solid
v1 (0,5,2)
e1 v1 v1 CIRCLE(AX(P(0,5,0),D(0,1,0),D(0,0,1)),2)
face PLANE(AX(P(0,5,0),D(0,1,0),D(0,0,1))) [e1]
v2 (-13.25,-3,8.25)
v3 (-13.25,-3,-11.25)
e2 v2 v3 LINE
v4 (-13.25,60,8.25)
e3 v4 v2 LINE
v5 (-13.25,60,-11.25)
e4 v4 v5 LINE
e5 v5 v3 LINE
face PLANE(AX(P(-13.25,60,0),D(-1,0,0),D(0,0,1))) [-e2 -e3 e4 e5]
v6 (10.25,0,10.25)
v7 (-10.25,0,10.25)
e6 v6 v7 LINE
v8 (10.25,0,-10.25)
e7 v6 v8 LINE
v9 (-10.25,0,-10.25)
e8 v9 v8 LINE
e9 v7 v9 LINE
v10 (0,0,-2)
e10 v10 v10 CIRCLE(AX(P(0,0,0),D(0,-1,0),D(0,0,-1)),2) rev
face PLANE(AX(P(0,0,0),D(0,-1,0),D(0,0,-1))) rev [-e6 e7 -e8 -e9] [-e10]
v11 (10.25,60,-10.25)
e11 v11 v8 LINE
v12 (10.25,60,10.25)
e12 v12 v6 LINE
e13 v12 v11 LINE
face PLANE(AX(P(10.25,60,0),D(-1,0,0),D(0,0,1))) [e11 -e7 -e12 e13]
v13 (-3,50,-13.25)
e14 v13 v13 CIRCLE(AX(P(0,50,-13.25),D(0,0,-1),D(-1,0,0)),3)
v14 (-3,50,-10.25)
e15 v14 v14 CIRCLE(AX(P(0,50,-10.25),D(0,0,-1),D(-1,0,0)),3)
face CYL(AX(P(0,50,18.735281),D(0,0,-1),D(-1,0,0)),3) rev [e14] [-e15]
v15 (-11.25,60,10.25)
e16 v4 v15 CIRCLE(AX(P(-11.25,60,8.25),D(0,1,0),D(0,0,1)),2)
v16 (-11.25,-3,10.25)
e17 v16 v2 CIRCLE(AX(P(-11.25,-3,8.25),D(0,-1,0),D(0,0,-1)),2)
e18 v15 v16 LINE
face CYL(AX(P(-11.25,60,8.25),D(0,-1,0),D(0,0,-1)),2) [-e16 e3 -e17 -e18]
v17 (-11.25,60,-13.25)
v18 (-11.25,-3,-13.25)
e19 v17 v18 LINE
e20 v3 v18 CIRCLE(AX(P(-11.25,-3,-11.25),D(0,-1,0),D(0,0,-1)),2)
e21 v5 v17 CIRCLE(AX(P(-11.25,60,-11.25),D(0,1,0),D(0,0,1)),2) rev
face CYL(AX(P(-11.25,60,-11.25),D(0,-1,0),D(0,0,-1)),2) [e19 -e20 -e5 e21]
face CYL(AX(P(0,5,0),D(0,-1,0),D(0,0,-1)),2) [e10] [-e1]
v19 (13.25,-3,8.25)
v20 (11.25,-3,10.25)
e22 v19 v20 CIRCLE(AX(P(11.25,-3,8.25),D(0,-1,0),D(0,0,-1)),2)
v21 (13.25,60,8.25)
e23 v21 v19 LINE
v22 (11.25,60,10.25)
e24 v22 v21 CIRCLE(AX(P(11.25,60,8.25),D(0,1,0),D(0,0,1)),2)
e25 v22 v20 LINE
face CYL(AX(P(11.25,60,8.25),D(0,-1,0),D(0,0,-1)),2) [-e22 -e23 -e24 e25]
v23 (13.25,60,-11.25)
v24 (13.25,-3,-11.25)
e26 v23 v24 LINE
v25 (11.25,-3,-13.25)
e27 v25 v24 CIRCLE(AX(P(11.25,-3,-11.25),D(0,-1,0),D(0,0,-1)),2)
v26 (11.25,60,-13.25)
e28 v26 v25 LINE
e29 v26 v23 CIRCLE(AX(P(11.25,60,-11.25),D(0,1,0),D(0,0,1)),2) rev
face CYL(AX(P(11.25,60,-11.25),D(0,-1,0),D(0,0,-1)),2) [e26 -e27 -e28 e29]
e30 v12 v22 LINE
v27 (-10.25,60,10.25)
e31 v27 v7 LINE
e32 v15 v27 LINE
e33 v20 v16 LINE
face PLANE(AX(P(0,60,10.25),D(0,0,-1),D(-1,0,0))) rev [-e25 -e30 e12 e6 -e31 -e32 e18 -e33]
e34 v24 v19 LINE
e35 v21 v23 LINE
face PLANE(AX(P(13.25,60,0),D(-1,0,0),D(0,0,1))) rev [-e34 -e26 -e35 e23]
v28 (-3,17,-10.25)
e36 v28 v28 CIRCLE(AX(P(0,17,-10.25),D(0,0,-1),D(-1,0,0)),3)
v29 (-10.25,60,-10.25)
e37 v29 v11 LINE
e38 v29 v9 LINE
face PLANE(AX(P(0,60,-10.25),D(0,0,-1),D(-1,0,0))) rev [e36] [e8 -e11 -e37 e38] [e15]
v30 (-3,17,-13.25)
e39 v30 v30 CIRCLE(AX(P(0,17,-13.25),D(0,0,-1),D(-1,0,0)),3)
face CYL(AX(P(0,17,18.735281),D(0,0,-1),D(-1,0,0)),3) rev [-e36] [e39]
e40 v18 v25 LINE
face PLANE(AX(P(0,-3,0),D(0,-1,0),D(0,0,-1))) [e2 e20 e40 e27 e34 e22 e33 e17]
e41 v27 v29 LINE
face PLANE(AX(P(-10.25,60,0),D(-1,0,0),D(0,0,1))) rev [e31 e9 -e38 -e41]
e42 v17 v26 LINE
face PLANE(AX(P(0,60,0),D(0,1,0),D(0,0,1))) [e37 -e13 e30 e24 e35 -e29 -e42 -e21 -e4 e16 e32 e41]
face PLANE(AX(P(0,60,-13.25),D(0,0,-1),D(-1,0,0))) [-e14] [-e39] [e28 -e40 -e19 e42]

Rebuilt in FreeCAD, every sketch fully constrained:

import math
import FreeCAD as App
import Part
import Sketcher
from FreeCAD import Vector
Q = App.Units.Quantity

doc = App.newDocument("Part")
params = doc.addObject("Spreadsheet::Sheet", "Params")
for row, (alias, value) in enumerate([
    ("sketch1_radius", "2 mm"),
    ("sketch1_width", "1 mm"),
    ("sketch1_width2", "20.5 mm"),
    ("sketch1_height", "19.5 mm"),
    ("pad1_length", "60 mm"),
    ("sketch2_radius", "2 mm"),
    ("sketch2_width", "22.5 mm"),
    ("sketch2_height", "19.5 mm"),
    ("pad2_length", "3 mm"),
    ("sketch3_diameter", "4 mm"),
    ("pad3_length", "5 mm"),
    ("sketch4_diameter", "6 mm"),
    ("pocket1_length", "23.5 mm"),
], start=1):
    params.set(f"A{row}", alias)
    params.set(f"B{row}", "=" + value)
    params.setAlias(f"B{row}", alias)

body = doc.addObject("PartDesign::Body", "Body")

sketch1 = body.newObject("Sketcher::SketchObject", "Sketch")
sketch1.AttachmentSupport = (doc.getObject("XZ_Plane"), [""])
sketch1.MapMode = "FlatFace"
sketch1.addGeometry([
    Part.LineSegment(Vector(-13.2, -11.2, 0), Vector(-13.2, 8.2, 0)),
    Part.ArcOfCircle(Part.Circle(Vector(-11.2, 8.2, 0), Vector(0, 0, 1), 2), math.radians(90), math.radians(180)),
    Part.LineSegment(Vector(-11.2, 10.2, 0), Vector(-10.2, 10.2, 0)),
    Part.LineSegment(Vector(-10.2, 10.2, 0), Vector(-10.2, -10.2, 0)),
    Part.LineSegment(Vector(-10.2, -10.2, 0), Vector(10.2, -10.2, 0)),
    Part.LineSegment(Vector(10.2, -10.2, 0), Vector(10.2, 10.2, 0)),
    Part.LineSegment(Vector(10.2, 10.2, 0), Vector(11.2, 10.2, 0)),
    Part.ArcOfCircle(Part.Circle(Vector(11.2, 8.2, 0), Vector(0, 0, 1), 2), math.radians(0), math.radians(90)),
    Part.LineSegment(Vector(13.2, 8.2, 0), Vector(13.2, -11.2, 0)),
    Part.ArcOfCircle(Part.Circle(Vector(11.2, -11.2, 0), Vector(0, 0, 1), 2), math.radians(-90), math.radians(0)),
    Part.LineSegment(Vector(11.2, -13.2, 0), Vector(-11.2, -13.2, 0)),
    Part.ArcOfCircle(Part.Circle(Vector(-11.2, -11.2, 0), Vector(0, 0, 1), 2), math.radians(-180), math.radians(-90)),
], False)
sketch1.addConstraint([
    Sketcher.Constraint("Tangent", 0, 2, 1, 2),
    Sketcher.Constraint("Tangent", 1, 1, 2, 1),
    Sketcher.Constraint("Coincident", 2, 2, 3, 1),
    Sketcher.Constraint("Coincident", 3, 2, 4, 1),
    Sketcher.Constraint("Coincident", 4, 2, 5, 1),
    Sketcher.Constraint("Coincident", 5, 2, 6, 1),
    Sketcher.Constraint("Tangent", 6, 2, 7, 2),
    Sketcher.Constraint("Tangent", 7, 1, 8, 1),
    Sketcher.Constraint("Tangent", 8, 2, 9, 2),
    Sketcher.Constraint("Tangent", 9, 1, 10, 1),
    Sketcher.Constraint("Tangent", 10, 2, 11, 2),
    Sketcher.Constraint("Tangent", 11, 1, 0, 1),
    Sketcher.Constraint("Vertical", 0),
    Sketcher.Constraint("Horizontal", 2),
    Sketcher.Constraint("Vertical", 3),
    Sketcher.Constraint("Horizontal", 4),
    Sketcher.Constraint("Vertical", 5),
    Sketcher.Constraint("Horizontal", 6),
    Sketcher.Constraint("Vertical", 8),
    Sketcher.Constraint("Horizontal", 10),
    Sketcher.Constraint("Equal", 1, 7),
    Sketcher.Constraint("Equal", 7, 9),
    Sketcher.Constraint("Equal", 9, 11),
    Sketcher.Constraint("Symmetric", 2, 2, 4, 2, -1, 1),
    Sketcher.Constraint("Symmetric", 1, 3, 7, 3, -2),
    Sketcher.Constraint("Equal", 4, 3),
    Sketcher.Constraint("Radius", 1, Q("2 mm")),
    Sketcher.Constraint("DistanceX", 2, 1, 2, 2, Q("1 mm")),
    Sketcher.Constraint("DistanceX", 4, 1, 4, 2, Q("20.5 mm")),
    Sketcher.Constraint("DistanceY", 0, 1, 0, 2, Q("19.5 mm")),
])
sketch1.setExpression("Constraints[26]", "Params.sketch1_radius")
sketch1.setExpression("Constraints[27]", "Params.sketch1_width")
sketch1.setExpression("Constraints[28]", "Params.sketch1_width2")
sketch1.setExpression("Constraints[29]", "Params.sketch1_height")
pad1 = body.newObject("PartDesign::Pad", "Pad")
pad1.Profile = sketch1
pad1.setExpression("Length", "Params.pad1_length")
pad1.Reversed = True

sketch2 = body.newObject("Sketcher::SketchObject", "Sketch001")
sketch2.AttachmentSupport = (doc.getObject("XZ_Plane"), [""])
sketch2.MapMode = "FlatFace"
sketch2.addGeometry([
    Part.ArcOfCircle(Part.Circle(Vector(-11.2, 8.2, 0), Vector(0, 0, 1), 2), math.radians(90), math.radians(180)),
    Part.LineSegment(Vector(-13.2, 8.2, 0), Vector(-13.2, -11.2, 0)),
    Part.ArcOfCircle(Part.Circle(Vector(-11.2, -11.2, 0), Vector(0, 0, 1), 2), math.radians(-180), math.radians(-90)),
    Part.LineSegment(Vector(-11.2, -13.2, 0), Vector(11.2, -13.2, 0)),
    Part.ArcOfCircle(Part.Circle(Vector(11.2, -11.2, 0), Vector(0, 0, 1), 2), math.radians(-90), math.radians(0)),
    Part.LineSegment(Vector(13.2, -11.2, 0), Vector(13.2, 8.2, 0)),
    Part.ArcOfCircle(Part.Circle(Vector(11.2, 8.2, 0), Vector(0, 0, 1), 2), math.radians(0), math.radians(90)),
    Part.LineSegment(Vector(11.2, 10.2, 0), Vector(-11.2, 10.2, 0)),
], False)
sketch2.addConstraint([
    Sketcher.Constraint("Tangent", 0, 2, 1, 1),
    Sketcher.Constraint("Tangent", 1, 2, 2, 1),
    Sketcher.Constraint("Tangent", 2, 2, 3, 1),
    Sketcher.Constraint("Tangent", 3, 2, 4, 1),
    Sketcher.Constraint("Tangent", 4, 2, 5, 1),
    Sketcher.Constraint("Tangent", 5, 2, 6, 1),
    Sketcher.Constraint("Tangent", 6, 2, 7, 1),
    Sketcher.Constraint("Tangent", 7, 2, 0, 1),
    Sketcher.Constraint("Vertical", 1),
    Sketcher.Constraint("Horizontal", 3),
    Sketcher.Constraint("Vertical", 5),
    Sketcher.Constraint("Horizontal", 7),
    Sketcher.Constraint("Equal", 0, 2),
    Sketcher.Constraint("Equal", 2, 4),
    Sketcher.Constraint("Equal", 4, 6),
    Sketcher.Constraint("Radius", 0, Q("2 mm")),
    Sketcher.Constraint("DistanceX", 3, 1, 3, 2, Q("22.5 mm")),
    Sketcher.Constraint("DistanceY", 1, 2, 1, 1, Q("19.5 mm")),
    Sketcher.Constraint("DistanceX", 0, 3, -1, 1, Q("11.25 mm")),
    Sketcher.Constraint("DistanceY", -1, 1, 0, 3, Q("8.25 mm")),
])
sketch2.setExpression("Constraints[15]", "Params.sketch2_radius")
sketch2.setExpression("Constraints[16]", "Params.sketch2_width")
sketch2.setExpression("Constraints[17]", "Params.sketch2_height")
pad2 = body.newObject("PartDesign::Pad", "Pad001")
pad2.Profile = sketch2
pad2.setExpression("Length", "Params.pad2_length")

sketch3 = body.newObject("Sketcher::SketchObject", "Sketch002")
sketch3.AttachmentSupport = (doc.getObject("XZ_Plane"), [""])
sketch3.MapMode = "FlatFace"
sketch3.addGeometry(Part.Circle(Vector(0, 0, 0), Vector(0, 0, 1), 2), False)
sketch3.addConstraint([
    Sketcher.Constraint("Coincident", 0, 3, -1, 1),
    Sketcher.Constraint("Diameter", 0, Q("4 mm")),
])
sketch3.setExpression("Constraints[1]", "Params.sketch3_diameter")
pad3 = body.newObject("PartDesign::Pad", "Pad002")
pad3.Profile = sketch3
pad3.setExpression("Length", "Params.pad3_length")
pad3.Reversed = True

sketch4 = body.newObject("Sketcher::SketchObject", "Sketch003")
sketch4.AttachmentSupport = (doc.getObject("XY_Plane"), [""])
sketch4.MapMode = "FlatFace"
sketch4.AttachmentOffset = App.Placement(Vector(0, 0, -13.25), App.Rotation())
sketch4.addGeometry([
    Part.Circle(Vector(0, 50, 0), Vector(0, 0, 1), 3),
    Part.Circle(Vector(0, 17, 0), Vector(0, 0, 1), 3),
], False)
sketch4.addConstraint([
    Sketcher.Constraint("Equal", 0, 1),
    Sketcher.Constraint("PointOnObject", 0, 3, -2),
    Sketcher.Constraint("PointOnObject", 1, 3, -2),
    Sketcher.Constraint("Diameter", 0, Q("6 mm")),
    Sketcher.Constraint("DistanceY", -1, 1, 0, 3, Q("50 mm")),
    Sketcher.Constraint("DistanceY", -1, 1, 1, 3, Q("17 mm")),
])
sketch4.setExpression("Constraints[3]", "Params.sketch4_diameter")
pocket1 = body.newObject("PartDesign::Pocket", "Pocket")
pocket1.Profile = sketch4
pocket1.setExpression("Length", "Params.pocket1_length")
pocket1.Reversed = True

doc.recompute()
